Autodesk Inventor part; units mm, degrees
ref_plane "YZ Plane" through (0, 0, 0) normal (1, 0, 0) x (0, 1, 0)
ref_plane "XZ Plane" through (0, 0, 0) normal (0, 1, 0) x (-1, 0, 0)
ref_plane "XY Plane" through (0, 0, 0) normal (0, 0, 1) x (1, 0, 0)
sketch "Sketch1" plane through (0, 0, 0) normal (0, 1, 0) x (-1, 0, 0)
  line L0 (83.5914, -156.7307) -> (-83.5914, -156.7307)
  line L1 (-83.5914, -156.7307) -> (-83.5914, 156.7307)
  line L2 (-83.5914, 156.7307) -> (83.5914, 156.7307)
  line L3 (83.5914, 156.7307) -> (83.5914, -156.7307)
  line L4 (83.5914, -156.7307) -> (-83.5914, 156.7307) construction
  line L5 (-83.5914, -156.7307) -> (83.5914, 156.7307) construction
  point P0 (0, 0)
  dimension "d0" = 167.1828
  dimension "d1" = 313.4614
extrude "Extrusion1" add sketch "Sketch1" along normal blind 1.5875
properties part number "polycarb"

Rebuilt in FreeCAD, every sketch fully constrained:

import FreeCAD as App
import Part
import Sketcher

V = App.Vector
Q = App.Units.Quantity

doc = App.newDocument("Part")
params = doc.addObject("Spreadsheet::Sheet", "Params")
for row, (alias, value) in enumerate([
    ("sketch1_width", "6.582 in"),
    ("sketch1_height", "12.341 in"),
    ("pad1_length", "0.0625 in"),
], start=1):
    params.set(f"A{row}", alias)
    params.set(f"B{row}", "=" + value)
    params.setAlias(f"B{row}", alias)

body = doc.addObject("PartDesign::Body", "Body")

# Sketch on XZ plane
sketch1 = body.newObject("Sketcher::SketchObject", "Sketch")
sketch1.AttachmentSupport = (doc.getObject("XZ_Plane"), [""])
sketch1.MapMode = "FlatFace"
sketch1.addGeometry([
    Part.LineSegment(V(84, -157, 0), V(-84, -157, 0)),
    Part.LineSegment(V(-84, -157, 0), V(-84, 157, 0)),
    Part.LineSegment(V(-84, 157, 0), V(84, 157, 0)),
    Part.LineSegment(V(84, 157, 0), V(84, -157, 0)),
], False)
sketch1.addConstraint([
    Sketcher.Constraint("Coincident", 0, 2, 1, 1),
    Sketcher.Constraint("Coincident", 1, 2, 2, 1),
    Sketcher.Constraint("Coincident", 2, 2, 3, 1),
    Sketcher.Constraint("Coincident", 3, 2, 0, 1),
    Sketcher.Constraint("Horizontal", 0),
    Sketcher.Constraint("Vertical", 1),
    Sketcher.Constraint("Horizontal", 2),
    Sketcher.Constraint("Vertical", 3),
    Sketcher.Constraint("Symmetric", 0, 2, 2, 2, -1, 1),
    Sketcher.Constraint("DistanceX", 0, 2, 0, 1, Q("6.582 in")),
    Sketcher.Constraint("DistanceY", 1, 1, 1, 2, Q("12.341 in")),
])
sketch1.setExpression("Constraints[9]", "Params.sketch1_width")
sketch1.setExpression("Constraints[10]", "Params.sketch1_height")
pad1 = body.newObject("PartDesign::Pad", "Pad")
pad1.Profile = sketch1
pad1.setExpression("Length", "Params.pad1_length")
pad1.Reversed = True

doc.recompute()
